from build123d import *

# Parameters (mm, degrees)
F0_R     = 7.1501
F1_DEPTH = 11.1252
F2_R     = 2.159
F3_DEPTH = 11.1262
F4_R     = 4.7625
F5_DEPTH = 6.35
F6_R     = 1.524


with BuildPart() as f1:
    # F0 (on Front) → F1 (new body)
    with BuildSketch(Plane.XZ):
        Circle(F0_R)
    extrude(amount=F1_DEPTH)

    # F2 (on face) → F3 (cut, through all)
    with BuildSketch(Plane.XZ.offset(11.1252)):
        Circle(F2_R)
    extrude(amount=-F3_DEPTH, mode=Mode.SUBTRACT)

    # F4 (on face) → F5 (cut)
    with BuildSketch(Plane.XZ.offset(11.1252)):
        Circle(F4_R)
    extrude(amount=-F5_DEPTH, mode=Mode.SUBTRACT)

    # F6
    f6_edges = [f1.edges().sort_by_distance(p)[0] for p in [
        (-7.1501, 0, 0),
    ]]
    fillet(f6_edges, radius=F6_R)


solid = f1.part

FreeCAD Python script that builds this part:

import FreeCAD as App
import Part
import Sketcher
Q = App.Units.Quantity


def edges_at(feature, points):
    """Names of the edges that pass closest to the given points."""
    edges = feature.Shape.Edges
    near = lambda p: min(range(len(edges)), key=lambda i: edges[i].distToShape(Part.Vertex(*p))[0])
    return sorted({f"Edge{near(p) + 1}" for p in points})

doc = App.newDocument("Part")
body = doc.addObject("PartDesign::Body", "Body")

sketch1 = body.newObject("Sketcher::SketchObject", "Sketch")
sketch1.AttachmentSupport = (doc.getObject("XZ_Plane"), [""])
sketch1.MapMode = "FlatFace"
sketch1.addGeometry(Part.Circle(App.Vector(0, 0, 0), App.Vector(0, 0, 1), 7.1501), False)
sketch1.addConstraint(Sketcher.Constraint("Coincident", 0, 3, -1, 1))
sketch1.addConstraint(Sketcher.Constraint("Diameter", 0, Q("0.563 in")))
pad1 = body.newObject("PartDesign::Pad", "Pad")
pad1.Profile = sketch1
pad1.Length = Q("0.438 in")

sketch2 = body.newObject("Sketcher::SketchObject", "Sketch001")
sketch2.AttachmentSupport = (doc.getObject("XZ_Plane"), [""])
sketch2.MapMode = "FlatFace"
sketch2.AttachmentOffset = App.Placement(App.Vector(0, 0, 0.438 * 25.4), App.Rotation())
sketch2.addGeometry(Part.Circle(App.Vector(0, 0, 0), App.Vector(0, 0, 1), 2.159), False)
sketch2.addConstraint(Sketcher.Constraint("Coincident", 0, 3, -1, 1))
sketch2.addConstraint(Sketcher.Constraint("Diameter", 0, Q("0.17 in")))
pocket1 = body.newObject("PartDesign::Pocket", "Pocket")
pocket1.Profile = sketch2
pocket1.Type = "ThroughAll"

sketch3 = body.newObject("Sketcher::SketchObject", "Sketch002")
sketch3.AttachmentSupport = (doc.getObject("XZ_Plane"), [""])
sketch3.MapMode = "FlatFace"
sketch3.AttachmentOffset = App.Placement(App.Vector(0, 0, 0.438 * 25.4), App.Rotation())
sketch3.addGeometry(Part.Circle(App.Vector(0, 0, 0), App.Vector(0, 0, 1), 4.7625), False)
sketch3.addConstraint(Sketcher.Constraint("Coincident", 0, 3, -1, 1))
sketch3.addConstraint(Sketcher.Constraint("Diameter", 0, Q("0.375 in")))
pocket2 = body.newObject("PartDesign::Pocket", "Pocket001")
pocket2.Profile = sketch3
pocket2.Length = Q("0.25 in")
doc.recompute()

fillet = body.newObject("PartDesign::Fillet", "Fillet")
fillet.Base = (pocket2, edges_at(pocket2, [(-7.15, 0, 0)]))
fillet.Radius = Q("0.06 in")

doc.recompute()
